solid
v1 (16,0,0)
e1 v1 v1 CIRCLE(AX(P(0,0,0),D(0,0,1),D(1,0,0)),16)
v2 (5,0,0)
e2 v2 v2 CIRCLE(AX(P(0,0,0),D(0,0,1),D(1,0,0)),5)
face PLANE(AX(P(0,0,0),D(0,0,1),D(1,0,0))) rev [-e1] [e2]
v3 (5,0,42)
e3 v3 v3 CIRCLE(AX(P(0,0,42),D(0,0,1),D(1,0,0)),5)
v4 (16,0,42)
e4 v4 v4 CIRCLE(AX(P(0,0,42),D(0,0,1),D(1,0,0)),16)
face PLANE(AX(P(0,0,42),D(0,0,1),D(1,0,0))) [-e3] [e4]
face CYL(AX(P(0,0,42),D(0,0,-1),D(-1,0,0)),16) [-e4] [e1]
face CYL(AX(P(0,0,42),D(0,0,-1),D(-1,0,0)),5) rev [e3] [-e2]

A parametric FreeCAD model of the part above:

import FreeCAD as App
import Part
import Sketcher

V = App.Vector

doc = App.newDocument("Part")
body = doc.addObject("PartDesign::Body", "Body")

# Sketch on XY plane
sketch1 = doc.addObject("Sketcher::SketchObject", "Sketch")
body.addObject(sketch1)
sketch1.AttachmentSupport = (doc.XY_Plane, [""])
sketch1.MapMode = "FlatFace"
sketch1.addGeometry([
    Part.Circle(V(0, 0, 0), V(0, 0, 1), 16),
    Part.Circle(V(0, 0, 0), V(0, 0, 1), 5),
], False)
sketch1.addConstraint([
    Sketcher.Constraint("Coincident", 0, 3, -1, 1),
    Sketcher.Constraint("Coincident", 1, 3, -1, 1),
    Sketcher.Constraint("Diameter", 0, 32.0),
    Sketcher.Constraint("Diameter", 1, 10.0),
])
pad1 = doc.addObject("PartDesign::Pad", "Pad")
body.addObject(pad1)
pad1.Profile = sketch1
pad1.Length = 42

doc.recompute()
